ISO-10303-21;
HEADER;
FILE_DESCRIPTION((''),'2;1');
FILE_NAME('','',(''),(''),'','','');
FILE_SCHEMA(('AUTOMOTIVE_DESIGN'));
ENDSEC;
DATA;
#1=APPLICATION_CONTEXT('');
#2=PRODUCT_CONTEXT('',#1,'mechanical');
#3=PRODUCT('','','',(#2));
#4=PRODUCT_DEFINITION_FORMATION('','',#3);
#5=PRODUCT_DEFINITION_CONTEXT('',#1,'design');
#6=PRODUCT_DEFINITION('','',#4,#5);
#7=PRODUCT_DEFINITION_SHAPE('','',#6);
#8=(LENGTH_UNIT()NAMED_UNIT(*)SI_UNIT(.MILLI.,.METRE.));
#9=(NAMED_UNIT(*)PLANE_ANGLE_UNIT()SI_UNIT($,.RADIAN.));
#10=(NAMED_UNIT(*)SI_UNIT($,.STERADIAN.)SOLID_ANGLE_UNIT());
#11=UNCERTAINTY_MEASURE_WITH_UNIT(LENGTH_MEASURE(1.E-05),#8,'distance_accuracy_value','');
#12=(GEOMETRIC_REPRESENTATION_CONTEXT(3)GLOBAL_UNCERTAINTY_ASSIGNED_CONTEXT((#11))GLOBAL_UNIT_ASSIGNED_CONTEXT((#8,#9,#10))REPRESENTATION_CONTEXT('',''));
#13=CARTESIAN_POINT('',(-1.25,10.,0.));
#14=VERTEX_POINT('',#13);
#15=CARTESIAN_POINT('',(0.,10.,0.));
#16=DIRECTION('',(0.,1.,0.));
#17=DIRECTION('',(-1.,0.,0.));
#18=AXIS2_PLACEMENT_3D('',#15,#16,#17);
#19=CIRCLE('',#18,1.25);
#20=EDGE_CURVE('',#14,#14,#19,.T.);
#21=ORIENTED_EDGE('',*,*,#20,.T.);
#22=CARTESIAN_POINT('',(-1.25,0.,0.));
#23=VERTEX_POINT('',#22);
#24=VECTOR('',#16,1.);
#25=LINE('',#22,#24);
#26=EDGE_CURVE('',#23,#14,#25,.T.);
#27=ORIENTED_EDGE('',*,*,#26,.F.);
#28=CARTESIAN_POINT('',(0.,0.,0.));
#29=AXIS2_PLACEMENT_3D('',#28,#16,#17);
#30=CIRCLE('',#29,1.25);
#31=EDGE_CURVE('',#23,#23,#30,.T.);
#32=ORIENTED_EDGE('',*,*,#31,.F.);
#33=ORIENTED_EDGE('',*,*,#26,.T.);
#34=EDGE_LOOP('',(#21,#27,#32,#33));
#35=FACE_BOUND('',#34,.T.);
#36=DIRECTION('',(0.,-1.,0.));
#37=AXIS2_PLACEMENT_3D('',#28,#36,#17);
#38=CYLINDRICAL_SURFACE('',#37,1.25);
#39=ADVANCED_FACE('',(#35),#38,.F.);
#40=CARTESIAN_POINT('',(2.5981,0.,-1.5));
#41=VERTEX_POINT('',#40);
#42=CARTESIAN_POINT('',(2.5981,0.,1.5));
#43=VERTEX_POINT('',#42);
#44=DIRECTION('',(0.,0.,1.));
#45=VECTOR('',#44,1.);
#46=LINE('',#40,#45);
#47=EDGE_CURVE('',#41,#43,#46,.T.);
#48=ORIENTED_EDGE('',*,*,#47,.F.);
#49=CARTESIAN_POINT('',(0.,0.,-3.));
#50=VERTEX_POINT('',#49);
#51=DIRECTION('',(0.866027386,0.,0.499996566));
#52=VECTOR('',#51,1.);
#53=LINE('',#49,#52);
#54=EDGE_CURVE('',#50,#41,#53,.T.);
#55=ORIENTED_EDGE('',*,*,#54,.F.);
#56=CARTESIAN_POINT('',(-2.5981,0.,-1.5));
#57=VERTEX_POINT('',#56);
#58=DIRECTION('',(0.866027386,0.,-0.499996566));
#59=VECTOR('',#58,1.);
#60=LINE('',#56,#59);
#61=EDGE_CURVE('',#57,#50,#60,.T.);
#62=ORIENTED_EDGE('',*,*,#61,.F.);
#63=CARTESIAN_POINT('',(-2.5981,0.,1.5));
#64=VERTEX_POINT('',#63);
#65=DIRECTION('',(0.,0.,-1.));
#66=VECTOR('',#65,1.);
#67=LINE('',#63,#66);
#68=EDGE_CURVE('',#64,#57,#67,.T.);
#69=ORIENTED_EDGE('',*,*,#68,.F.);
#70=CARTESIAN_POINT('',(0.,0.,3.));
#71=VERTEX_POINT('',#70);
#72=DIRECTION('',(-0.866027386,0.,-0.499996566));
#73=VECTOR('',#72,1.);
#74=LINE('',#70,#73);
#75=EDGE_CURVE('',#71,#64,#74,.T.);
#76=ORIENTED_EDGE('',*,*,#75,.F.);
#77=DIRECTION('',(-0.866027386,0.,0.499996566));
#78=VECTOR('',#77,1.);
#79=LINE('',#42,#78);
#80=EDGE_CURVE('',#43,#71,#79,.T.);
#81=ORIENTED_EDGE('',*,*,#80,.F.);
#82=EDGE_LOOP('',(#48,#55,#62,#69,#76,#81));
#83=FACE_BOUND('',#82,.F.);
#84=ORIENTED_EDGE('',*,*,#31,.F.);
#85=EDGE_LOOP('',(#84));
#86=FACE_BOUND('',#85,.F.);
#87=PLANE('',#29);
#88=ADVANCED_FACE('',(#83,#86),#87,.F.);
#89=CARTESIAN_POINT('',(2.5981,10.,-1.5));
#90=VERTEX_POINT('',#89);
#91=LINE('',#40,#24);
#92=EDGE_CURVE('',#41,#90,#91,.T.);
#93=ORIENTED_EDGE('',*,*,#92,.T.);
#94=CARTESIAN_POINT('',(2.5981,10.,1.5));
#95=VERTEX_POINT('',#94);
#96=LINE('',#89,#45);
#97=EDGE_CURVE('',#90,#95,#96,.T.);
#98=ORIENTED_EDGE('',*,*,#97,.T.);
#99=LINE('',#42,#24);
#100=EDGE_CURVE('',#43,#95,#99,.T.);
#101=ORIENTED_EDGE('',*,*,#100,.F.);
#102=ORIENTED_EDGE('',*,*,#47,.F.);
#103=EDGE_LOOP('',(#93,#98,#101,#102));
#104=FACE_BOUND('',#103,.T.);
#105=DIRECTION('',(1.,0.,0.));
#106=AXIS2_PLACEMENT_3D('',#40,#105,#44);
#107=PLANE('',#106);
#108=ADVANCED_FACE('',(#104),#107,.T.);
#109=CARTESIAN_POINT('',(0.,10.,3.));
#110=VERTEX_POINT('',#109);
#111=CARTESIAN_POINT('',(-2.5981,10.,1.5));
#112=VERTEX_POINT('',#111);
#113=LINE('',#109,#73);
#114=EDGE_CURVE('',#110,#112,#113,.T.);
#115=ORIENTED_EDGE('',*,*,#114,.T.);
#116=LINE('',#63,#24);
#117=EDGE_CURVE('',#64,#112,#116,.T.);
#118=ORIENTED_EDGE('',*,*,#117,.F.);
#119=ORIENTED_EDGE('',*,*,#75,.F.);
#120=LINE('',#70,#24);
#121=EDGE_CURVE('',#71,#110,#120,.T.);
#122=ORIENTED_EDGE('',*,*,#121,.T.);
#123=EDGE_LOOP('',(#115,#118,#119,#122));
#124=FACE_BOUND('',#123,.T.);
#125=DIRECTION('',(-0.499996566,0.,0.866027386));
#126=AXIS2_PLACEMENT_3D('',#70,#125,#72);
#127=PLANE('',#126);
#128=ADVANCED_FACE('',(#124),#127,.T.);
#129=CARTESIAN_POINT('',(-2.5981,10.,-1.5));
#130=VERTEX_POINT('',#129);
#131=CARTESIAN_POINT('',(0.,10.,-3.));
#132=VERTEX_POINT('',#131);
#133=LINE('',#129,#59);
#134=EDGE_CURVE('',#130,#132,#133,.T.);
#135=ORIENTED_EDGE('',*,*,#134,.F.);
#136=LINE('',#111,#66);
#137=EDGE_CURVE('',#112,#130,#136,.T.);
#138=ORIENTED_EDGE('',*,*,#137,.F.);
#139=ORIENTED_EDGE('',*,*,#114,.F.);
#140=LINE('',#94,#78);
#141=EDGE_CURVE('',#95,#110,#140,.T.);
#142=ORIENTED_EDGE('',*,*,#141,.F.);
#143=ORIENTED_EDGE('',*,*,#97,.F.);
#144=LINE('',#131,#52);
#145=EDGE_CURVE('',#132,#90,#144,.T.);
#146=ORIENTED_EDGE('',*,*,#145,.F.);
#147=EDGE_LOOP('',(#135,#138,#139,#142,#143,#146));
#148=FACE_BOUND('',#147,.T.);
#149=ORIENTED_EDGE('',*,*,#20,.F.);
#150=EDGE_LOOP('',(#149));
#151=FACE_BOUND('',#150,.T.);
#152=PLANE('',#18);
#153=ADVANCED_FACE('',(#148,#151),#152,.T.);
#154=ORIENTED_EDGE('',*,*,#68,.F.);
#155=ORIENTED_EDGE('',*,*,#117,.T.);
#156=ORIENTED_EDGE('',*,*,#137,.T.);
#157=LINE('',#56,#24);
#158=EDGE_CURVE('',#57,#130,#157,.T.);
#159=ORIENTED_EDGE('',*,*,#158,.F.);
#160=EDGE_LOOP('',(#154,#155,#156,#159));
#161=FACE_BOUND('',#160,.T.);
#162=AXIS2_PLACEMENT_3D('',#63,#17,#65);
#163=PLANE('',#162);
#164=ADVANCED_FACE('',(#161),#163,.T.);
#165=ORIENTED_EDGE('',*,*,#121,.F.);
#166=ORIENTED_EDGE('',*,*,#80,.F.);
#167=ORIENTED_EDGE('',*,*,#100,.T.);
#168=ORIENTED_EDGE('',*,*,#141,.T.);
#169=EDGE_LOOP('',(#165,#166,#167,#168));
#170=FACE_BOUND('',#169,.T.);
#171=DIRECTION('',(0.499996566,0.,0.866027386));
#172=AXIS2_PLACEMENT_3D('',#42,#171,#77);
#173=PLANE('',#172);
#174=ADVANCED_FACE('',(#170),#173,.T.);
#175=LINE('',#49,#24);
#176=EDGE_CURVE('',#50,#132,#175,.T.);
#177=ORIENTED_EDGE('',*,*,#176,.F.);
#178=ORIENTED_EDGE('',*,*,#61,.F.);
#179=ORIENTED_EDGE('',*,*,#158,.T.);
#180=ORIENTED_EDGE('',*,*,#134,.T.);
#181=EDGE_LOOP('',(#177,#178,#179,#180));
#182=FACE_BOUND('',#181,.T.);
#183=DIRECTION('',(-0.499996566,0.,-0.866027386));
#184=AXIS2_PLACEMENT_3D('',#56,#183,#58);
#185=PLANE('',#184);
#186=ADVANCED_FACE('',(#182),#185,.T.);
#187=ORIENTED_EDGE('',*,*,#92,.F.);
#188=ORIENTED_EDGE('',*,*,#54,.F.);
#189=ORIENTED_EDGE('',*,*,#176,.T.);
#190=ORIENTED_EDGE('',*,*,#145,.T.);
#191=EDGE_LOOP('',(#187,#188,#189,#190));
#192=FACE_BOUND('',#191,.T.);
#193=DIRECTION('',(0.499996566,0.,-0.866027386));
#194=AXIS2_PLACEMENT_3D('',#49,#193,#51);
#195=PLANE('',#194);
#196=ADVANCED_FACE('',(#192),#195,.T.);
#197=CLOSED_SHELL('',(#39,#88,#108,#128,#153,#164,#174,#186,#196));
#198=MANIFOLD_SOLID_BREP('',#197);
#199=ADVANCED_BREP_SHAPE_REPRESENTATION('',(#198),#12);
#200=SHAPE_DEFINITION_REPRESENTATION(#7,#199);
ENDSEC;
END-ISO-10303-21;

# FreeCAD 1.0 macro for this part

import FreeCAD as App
import Part
import Sketcher

V = App.Vector
Q = App.Units.Quantity


def add_polygon(sketch, points):
    """Adds a closed chain of lines whose ends are joined by coincident constraints."""
    first, n = sketch.GeometryCount, len(points)
    for a, b in zip(points, points[1:] + points[:1]):
        sketch.addGeometry(Part.LineSegment(App.Vector(*a, 0), App.Vector(*b, 0)), False)
    for i in range(n):
        sketch.addConstraint(Sketcher.Constraint("Coincident", first + i, 2, first + (i + 1) % n, 1))

doc = App.newDocument("Part")
body = doc.addObject("PartDesign::Body", "Body")

# Sketch on XZ plane
sketch1 = body.newObject("Sketcher::SketchObject", "Sketch")
sketch1.AttachmentSupport = (doc.getObject("XZ_Plane"), [""])
sketch1.MapMode = "FlatFace"
add_polygon(sketch1, [(2.6, -1.5), (0, -3), (-2.6, -1.5), (-2.6, 1.5), (0, 3), (2.6, 1.5)])  # lines 0-5
sketch1.addGeometry(Part.Circle(V(0, 0, 0), V(0, 0, 1), 1.2), False)  # 6
sketch1.addConstraint([
    Sketcher.Constraint("Vertical", 2),
    Sketcher.Constraint("Vertical", 5),
    Sketcher.Constraint("Coincident", 6, 3, -1, 1),
    Sketcher.Constraint("Symmetric", 0, 2, 3, 2, -1, 1),
    Sketcher.Constraint("Symmetric", 1, 2, 4, 2, -1, 1),
    Sketcher.Constraint("PointOnObject", 0, 2, -2),
    Sketcher.Constraint("Parallel", 0, 3),
    Sketcher.Constraint("Horizontal", 2, 2, 4, 2),
    Sketcher.Constraint("Diameter", 6, 2.5),
    Sketcher.Constraint("DistanceY", 2, 1, 2, 2, 3.0),
    Sketcher.Constraint("Angle", 0, Q("-150.0002 deg")),
    Sketcher.Constraint("Distance", 0, 3.0),
])
pad1 = body.newObject("PartDesign::Pad", "Pad")
pad1.Profile = sketch1
pad1.Length = 10
pad1.Reversed = True

doc.recompute()
